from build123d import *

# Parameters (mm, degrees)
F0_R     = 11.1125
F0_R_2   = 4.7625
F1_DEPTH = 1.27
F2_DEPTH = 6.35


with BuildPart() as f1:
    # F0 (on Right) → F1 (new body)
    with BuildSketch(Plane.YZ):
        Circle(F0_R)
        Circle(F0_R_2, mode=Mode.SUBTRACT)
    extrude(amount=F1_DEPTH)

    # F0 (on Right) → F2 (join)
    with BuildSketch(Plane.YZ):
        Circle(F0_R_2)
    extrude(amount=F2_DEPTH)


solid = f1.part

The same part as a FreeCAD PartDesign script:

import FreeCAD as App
import Part
import Sketcher
Q = App.Units.Quantity

doc = App.newDocument("Part")
body = doc.addObject("PartDesign::Body", "Body")

# Sketch on YZ plane
sketch1 = body.newObject("Sketcher::SketchObject", "Sketch")
sketch1.AttachmentSupport = (doc.getObject("YZ_Plane"), [""])
sketch1.MapMode = "FlatFace"
sketch1.addGeometry(Part.Circle(App.Vector(0, 0, 0), App.Vector(0, 0, 1), 11.1), False)
sketch1.addGeometry(Part.Circle(App.Vector(0, 0, 0), App.Vector(0, 0, 1), 4.8), False)
sketch1.addConstraint(Sketcher.Constraint("Coincident", 0, 3, -1, 1))
sketch1.addConstraint(Sketcher.Constraint("Coincident", 1, 3, -1, 1))
sketch1.addConstraint(Sketcher.Constraint("Diameter", 0, Q("0.875 in")))
sketch1.addConstraint(Sketcher.Constraint("Diameter", 1, Q("0.375 in")))
pad1 = body.newObject("PartDesign::Pad", "Pad")
pad1.Profile = sketch1
pad1.Length = Q("0.05 in")

# Sketch on YZ plane
sketch2 = body.newObject("Sketcher::SketchObject", "Sketch001")
sketch2.AttachmentSupport = (doc.getObject("YZ_Plane"), [""])
sketch2.MapMode = "FlatFace"
sketch2.addGeometry(Part.Circle(App.Vector(0, 0, 0), App.Vector(0, 0, 1), 4.8), False)
sketch2.addConstraint(Sketcher.Constraint("Coincident", 0, 3, -1, 1))
sketch2.addConstraint(Sketcher.Constraint("Diameter", 0, Q("0.375 in")))
pad2 = body.newObject("PartDesign::Pad", "Pad001")
pad2.Profile = sketch2
pad2.Length = Q("0.25 in")

doc.recompute()
